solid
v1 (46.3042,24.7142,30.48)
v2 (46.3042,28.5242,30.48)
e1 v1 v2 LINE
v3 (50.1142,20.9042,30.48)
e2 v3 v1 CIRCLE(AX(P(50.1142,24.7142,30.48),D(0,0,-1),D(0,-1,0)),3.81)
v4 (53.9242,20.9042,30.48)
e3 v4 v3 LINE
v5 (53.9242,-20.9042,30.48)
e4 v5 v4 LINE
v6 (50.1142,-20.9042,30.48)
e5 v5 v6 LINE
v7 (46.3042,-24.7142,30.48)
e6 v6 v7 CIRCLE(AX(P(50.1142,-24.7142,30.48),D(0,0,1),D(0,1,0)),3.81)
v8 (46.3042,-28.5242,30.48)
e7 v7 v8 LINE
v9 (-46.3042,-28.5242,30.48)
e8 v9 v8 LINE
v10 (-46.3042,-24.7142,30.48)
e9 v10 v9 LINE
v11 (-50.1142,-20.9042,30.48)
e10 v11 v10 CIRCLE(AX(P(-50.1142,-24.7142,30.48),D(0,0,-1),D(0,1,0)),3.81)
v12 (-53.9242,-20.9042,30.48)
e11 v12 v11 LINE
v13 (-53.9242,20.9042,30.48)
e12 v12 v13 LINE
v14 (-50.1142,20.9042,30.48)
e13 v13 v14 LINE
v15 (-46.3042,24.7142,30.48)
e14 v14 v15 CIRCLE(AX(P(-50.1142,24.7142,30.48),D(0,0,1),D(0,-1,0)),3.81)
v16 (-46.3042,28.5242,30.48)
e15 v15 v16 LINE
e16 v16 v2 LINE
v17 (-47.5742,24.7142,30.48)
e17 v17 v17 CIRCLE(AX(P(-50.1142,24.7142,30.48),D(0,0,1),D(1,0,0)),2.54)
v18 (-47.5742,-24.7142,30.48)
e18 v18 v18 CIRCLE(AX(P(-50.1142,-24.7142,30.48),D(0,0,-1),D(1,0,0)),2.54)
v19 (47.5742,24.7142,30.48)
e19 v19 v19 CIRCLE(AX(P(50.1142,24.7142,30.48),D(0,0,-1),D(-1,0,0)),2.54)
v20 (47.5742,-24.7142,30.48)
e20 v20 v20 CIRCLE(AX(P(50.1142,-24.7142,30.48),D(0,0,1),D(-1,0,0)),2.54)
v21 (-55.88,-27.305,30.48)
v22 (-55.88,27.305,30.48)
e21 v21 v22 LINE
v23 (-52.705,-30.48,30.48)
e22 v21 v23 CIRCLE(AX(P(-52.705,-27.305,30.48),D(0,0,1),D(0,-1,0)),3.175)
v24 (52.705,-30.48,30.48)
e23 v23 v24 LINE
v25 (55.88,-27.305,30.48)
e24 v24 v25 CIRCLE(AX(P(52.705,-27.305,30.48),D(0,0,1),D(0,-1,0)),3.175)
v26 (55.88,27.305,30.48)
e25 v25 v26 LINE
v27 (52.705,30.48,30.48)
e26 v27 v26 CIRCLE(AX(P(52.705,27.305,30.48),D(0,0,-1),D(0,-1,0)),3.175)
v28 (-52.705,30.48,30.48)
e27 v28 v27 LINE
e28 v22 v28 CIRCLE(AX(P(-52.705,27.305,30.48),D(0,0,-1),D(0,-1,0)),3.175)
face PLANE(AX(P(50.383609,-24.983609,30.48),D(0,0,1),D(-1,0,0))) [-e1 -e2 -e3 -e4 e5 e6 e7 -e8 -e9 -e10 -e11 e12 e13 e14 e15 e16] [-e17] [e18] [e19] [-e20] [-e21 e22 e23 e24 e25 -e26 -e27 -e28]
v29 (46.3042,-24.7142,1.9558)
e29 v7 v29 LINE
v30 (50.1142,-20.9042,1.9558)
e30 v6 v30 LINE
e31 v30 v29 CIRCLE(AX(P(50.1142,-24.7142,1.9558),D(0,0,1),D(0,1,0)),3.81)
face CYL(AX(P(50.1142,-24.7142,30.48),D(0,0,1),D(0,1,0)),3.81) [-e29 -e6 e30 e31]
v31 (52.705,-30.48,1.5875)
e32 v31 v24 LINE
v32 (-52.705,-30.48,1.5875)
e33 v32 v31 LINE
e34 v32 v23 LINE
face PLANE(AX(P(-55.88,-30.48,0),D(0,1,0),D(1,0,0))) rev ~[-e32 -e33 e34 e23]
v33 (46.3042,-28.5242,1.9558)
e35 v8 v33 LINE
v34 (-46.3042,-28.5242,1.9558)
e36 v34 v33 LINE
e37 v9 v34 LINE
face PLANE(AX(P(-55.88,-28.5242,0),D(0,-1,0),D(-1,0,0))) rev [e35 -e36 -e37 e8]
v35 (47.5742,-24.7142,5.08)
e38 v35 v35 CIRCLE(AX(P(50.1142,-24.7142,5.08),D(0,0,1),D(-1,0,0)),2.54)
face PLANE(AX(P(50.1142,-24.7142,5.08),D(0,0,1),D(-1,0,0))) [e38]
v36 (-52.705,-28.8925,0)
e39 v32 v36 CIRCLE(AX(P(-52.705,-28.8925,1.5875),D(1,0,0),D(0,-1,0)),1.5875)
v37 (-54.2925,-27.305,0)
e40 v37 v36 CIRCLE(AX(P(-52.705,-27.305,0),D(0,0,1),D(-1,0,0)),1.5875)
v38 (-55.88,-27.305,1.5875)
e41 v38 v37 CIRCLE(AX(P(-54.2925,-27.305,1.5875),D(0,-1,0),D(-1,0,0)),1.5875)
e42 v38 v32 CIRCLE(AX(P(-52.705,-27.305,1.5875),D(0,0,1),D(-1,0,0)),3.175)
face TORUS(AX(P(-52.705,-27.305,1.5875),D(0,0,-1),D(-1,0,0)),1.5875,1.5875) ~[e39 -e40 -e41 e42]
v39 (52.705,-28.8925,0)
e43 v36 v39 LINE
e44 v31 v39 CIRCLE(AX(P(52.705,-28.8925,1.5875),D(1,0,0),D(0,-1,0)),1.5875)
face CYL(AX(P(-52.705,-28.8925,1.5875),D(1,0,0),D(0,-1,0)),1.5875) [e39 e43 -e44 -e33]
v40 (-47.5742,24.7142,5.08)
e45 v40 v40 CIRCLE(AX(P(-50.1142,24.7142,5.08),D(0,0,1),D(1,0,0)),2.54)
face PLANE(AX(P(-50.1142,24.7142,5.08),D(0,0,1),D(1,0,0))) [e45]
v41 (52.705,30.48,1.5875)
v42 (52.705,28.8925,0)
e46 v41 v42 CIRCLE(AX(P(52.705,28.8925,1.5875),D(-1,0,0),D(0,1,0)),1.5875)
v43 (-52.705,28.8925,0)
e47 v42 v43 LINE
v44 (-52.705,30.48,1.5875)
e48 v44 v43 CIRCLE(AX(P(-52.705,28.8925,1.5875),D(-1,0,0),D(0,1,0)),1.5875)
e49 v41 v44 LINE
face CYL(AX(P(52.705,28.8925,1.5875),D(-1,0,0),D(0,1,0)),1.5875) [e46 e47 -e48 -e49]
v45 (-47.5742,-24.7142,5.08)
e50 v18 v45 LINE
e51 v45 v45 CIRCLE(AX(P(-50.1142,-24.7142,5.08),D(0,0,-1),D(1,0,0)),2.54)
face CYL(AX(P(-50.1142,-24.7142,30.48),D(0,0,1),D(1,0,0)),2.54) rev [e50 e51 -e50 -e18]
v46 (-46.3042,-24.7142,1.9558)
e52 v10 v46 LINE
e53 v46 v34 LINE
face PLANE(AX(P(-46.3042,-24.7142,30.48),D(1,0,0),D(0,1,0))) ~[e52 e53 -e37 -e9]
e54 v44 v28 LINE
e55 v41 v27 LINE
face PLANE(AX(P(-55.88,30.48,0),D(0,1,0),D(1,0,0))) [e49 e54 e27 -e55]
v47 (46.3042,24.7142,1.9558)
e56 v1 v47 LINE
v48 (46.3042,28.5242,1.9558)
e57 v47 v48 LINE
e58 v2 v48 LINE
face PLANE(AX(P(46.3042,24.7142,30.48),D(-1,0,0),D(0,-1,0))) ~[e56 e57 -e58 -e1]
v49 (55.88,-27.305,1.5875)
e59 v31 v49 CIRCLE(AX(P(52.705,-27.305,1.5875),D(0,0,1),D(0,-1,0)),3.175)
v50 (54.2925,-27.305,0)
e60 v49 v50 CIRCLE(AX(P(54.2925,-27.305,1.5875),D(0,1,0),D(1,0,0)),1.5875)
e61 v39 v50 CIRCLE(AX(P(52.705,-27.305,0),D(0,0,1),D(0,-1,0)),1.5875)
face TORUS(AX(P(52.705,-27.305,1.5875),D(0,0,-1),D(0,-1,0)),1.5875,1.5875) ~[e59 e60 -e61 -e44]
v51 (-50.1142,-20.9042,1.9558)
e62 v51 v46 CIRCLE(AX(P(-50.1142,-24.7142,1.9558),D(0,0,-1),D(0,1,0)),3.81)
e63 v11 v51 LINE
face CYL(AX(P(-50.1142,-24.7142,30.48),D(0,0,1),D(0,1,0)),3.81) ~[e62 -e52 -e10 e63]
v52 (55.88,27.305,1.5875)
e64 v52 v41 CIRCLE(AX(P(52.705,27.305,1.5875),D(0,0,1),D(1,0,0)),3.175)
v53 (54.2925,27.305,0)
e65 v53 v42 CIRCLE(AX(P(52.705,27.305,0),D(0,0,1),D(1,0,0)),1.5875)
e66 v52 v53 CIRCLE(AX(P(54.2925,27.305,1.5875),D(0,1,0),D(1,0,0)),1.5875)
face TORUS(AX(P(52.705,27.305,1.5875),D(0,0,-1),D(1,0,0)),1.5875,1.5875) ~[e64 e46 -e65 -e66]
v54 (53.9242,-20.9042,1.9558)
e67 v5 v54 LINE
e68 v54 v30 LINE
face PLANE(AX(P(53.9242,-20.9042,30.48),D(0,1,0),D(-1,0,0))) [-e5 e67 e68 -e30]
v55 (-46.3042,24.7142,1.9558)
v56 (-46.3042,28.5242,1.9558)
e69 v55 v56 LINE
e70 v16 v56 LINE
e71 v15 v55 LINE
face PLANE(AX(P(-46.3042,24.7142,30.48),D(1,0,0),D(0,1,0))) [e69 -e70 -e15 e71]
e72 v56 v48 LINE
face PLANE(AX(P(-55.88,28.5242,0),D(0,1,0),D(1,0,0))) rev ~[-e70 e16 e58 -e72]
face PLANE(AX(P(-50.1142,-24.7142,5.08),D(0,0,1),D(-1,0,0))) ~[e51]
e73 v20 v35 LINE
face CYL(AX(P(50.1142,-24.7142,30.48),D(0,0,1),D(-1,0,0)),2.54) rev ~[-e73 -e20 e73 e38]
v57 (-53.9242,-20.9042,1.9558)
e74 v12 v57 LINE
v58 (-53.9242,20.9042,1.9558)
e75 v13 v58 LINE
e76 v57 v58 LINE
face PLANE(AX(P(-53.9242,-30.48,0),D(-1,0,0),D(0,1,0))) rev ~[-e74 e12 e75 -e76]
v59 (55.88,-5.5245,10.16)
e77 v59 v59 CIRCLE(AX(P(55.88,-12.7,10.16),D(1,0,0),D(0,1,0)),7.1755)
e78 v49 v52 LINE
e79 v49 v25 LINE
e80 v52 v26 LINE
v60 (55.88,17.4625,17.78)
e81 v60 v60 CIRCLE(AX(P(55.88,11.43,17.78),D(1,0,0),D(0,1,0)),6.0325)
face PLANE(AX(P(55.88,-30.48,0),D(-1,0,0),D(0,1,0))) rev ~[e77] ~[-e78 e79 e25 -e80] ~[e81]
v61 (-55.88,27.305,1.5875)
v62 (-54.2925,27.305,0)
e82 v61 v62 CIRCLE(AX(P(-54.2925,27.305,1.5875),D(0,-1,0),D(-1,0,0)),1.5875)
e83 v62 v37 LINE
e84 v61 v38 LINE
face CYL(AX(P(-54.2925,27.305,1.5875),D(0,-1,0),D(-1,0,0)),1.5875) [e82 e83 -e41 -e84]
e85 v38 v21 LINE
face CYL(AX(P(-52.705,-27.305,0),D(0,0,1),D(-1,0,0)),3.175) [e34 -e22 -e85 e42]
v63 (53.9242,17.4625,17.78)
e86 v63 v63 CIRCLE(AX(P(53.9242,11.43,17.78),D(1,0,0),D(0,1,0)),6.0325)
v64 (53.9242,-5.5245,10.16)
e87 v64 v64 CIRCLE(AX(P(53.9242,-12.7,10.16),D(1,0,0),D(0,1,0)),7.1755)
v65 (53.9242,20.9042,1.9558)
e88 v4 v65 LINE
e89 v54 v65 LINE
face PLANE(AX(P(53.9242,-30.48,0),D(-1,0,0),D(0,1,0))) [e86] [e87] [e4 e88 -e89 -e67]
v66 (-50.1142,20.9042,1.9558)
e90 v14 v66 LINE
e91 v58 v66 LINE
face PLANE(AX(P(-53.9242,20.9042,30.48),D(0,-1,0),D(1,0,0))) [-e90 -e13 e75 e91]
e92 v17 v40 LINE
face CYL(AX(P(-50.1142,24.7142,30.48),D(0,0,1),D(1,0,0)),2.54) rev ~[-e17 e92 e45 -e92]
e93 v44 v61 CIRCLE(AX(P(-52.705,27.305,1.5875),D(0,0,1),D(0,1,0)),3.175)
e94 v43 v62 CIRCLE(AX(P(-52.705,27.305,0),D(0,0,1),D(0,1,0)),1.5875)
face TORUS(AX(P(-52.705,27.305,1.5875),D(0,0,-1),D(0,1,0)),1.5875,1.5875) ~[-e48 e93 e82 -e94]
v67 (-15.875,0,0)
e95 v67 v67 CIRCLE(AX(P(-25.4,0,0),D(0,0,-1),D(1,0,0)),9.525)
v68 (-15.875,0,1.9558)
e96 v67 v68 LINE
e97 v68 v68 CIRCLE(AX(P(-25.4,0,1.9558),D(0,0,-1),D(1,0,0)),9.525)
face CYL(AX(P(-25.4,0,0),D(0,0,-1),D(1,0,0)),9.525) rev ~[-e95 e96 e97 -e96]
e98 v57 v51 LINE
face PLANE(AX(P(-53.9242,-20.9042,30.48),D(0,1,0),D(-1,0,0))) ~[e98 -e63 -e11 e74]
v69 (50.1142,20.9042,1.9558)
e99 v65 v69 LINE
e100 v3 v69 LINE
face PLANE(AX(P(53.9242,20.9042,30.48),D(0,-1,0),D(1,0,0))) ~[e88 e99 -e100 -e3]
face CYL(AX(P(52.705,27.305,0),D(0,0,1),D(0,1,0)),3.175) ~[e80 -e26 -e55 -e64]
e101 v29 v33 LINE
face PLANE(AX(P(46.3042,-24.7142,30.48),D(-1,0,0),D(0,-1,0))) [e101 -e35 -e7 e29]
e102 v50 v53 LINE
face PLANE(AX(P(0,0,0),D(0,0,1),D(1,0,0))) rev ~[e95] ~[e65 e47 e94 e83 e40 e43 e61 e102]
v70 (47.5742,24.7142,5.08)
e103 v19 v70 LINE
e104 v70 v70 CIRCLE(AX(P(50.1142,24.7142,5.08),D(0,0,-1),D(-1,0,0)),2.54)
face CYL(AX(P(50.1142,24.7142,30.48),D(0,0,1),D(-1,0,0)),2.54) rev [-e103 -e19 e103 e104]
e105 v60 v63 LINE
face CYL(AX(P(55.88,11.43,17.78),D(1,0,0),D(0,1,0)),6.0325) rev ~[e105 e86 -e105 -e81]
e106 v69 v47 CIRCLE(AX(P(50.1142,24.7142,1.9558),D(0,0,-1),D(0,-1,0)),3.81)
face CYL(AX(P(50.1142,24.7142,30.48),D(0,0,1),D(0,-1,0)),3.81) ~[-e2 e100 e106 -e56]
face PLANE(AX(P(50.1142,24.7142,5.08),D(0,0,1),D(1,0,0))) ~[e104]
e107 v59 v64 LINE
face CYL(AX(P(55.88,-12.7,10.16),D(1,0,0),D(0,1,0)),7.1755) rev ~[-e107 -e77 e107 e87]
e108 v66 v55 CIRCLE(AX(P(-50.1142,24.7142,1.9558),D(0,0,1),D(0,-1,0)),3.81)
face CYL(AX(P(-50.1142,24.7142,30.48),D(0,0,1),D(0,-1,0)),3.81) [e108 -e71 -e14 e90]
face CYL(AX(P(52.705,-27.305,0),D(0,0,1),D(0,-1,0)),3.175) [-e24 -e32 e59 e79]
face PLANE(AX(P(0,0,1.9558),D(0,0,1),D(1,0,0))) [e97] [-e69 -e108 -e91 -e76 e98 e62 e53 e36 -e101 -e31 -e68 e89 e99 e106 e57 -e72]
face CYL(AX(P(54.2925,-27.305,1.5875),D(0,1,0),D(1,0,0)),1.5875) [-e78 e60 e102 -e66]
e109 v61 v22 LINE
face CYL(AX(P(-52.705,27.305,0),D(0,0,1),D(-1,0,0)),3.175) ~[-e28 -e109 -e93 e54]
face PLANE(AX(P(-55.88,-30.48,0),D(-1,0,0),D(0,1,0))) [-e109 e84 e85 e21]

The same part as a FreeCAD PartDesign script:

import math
import FreeCAD as App
import Part
import Sketcher
Q = App.Units.Quantity


def edges_at(feature, points):
    """Names of the edges that pass closest to the given points."""
    edges = feature.Shape.Edges
    near = lambda p: min(range(len(edges)), key=lambda i: edges[i].distToShape(Part.Vertex(*p))[0])
    return sorted({f"Edge{near(p) + 1}" for p in points})


def faces_at(feature, points):
    """Names of the faces that lie closest to the given points."""
    faces = feature.Shape.Faces
    near = lambda p: min(range(len(faces)), key=lambda i: faces[i].distToShape(Part.Vertex(*p))[0])
    return sorted({f"Face{near(p) + 1}" for p in points})

doc = App.newDocument("Part")
body = doc.addObject("PartDesign::Body", "Body")

# Sketch on XY plane
sketch1 = body.newObject("Sketcher::SketchObject", "Sketch")
sketch1.AttachmentSupport = (doc.getObject("XY_Plane"), [""])
sketch1.MapMode = "FlatFace"
sketch1.addGeometry([
    Part.LineSegment(App.Vector(-56, 30, 0), App.Vector(-56, -30, 0)),
    Part.LineSegment(App.Vector(-56, -30, 0), App.Vector(56, -30, 0)),
    Part.LineSegment(App.Vector(56, -30, 0), App.Vector(56, 30, 0)),
    Part.LineSegment(App.Vector(56, 30, 0), App.Vector(-56, 30, 0)),
], False)
sketch1.addConstraint([
    Sketcher.Constraint("Coincident", 0, 2, 1, 1),
    Sketcher.Constraint("Coincident", 1, 2, 2, 1),
    Sketcher.Constraint("Coincident", 2, 2, 3, 1),
    Sketcher.Constraint("Coincident", 3, 2, 0, 1),
    Sketcher.Constraint("Vertical", 0),
    Sketcher.Constraint("Horizontal", 1),
    Sketcher.Constraint("Vertical", 2),
    Sketcher.Constraint("Horizontal", 3),
    Sketcher.Constraint("Symmetric", 0, 2, 2, 2, -1, 1),
    Sketcher.Constraint("DistanceX", 1, 1, 1, 2, Q("4.4 in")),
    Sketcher.Constraint("DistanceY", 0, 2, 0, 1, Q("2.4 in")),
])
pad1 = body.newObject("PartDesign::Pad", "Pad")
pad1.Profile = sketch1
pad1.Length = Q("1.2 in")
doc.recompute()

thickness = body.newObject("PartDesign::Thickness", "Thickness")
thickness.Base = (pad1, faces_at(pad1, [(0, 0, 30.48)]))
thickness.Value = Q("0.077 in")
thickness.Reversed = True
thickness.Join = "Arc"

# Sketch on XY plane
sketch2 = body.newObject("Sketcher::SketchObject", "Sketch001")
sketch2.AttachmentSupport = (doc.getObject("XY_Plane"), [""])
sketch2.MapMode = "FlatFace"
sketch2.AttachmentOffset = App.Placement(App.Vector(0, 0, 1.2 * 25.4), App.Rotation())
sketch2.addGeometry([
    Part.LineSegment(App.Vector(-53.9, 20.9, 0), App.Vector(-50.1, 20.9, 0)),  # 0
    Part.ArcOfCircle(Part.Circle(App.Vector(-50.1, 24.7, 0), App.Vector(0, 0, 1), 3.8), math.radians(-90), math.radians(0)),  # 1
    Part.LineSegment(App.Vector(-46.3, 24.7, 0), App.Vector(-46.3, 28.5, 0)),  # 2
    Part.LineSegment(App.Vector(-46.3, 28.5, 0), App.Vector(-53.9, 28.5, 0)),  # 3
    Part.LineSegment(App.Vector(-53.9, 28.5, 0), App.Vector(-53.9, 20.9, 0)),  # 4
], False)
sketch2.addConstraint([
    Sketcher.Constraint("Tangent", 0, 2, 1, 1),
    Sketcher.Constraint("Tangent", 1, 2, 2, 1),
    Sketcher.Constraint("Coincident", 2, 2, 3, 1),
    Sketcher.Constraint("Coincident", 3, 2, 4, 1),
    Sketcher.Constraint("Coincident", 4, 2, 0, 1),
    Sketcher.Constraint("Horizontal", 0),
    Sketcher.Constraint("Vertical", 2),
    Sketcher.Constraint("Horizontal", 3),
    Sketcher.Constraint("Vertical", 4),
    Sketcher.Constraint("Equal", 0, 2),
    Sketcher.Constraint("Radius", 1, Q("0.15 in")),
    Sketcher.Constraint("DistanceX", 3, 2, 3, 1, Q("0.3 in")),
    Sketcher.Constraint("DistanceX", 1, 3, -1, 1, Q("1.973 in")),
    Sketcher.Constraint("DistanceY", -1, 1, 1, 3, Q("0.973 in")),
])
pad2 = body.newObject("PartDesign::Pad", "Pad001")
pad2.Profile = sketch2
pad2.Type = "UpToLast"
pad2.Reversed = True

# Sketch on XY plane
sketch3 = body.newObject("Sketcher::SketchObject", "Sketch002")
sketch3.AttachmentSupport = (doc.getObject("XY_Plane"), [""])
sketch3.MapMode = "FlatFace"
sketch3.AttachmentOffset = App.Placement(App.Vector(0, 0, 1.2 * 25.4), App.Rotation())
sketch3.addGeometry(Part.Circle(App.Vector(-50.1, 24.7, 0), App.Vector(0, 0, 1), 2.5), False)
sketch3.addConstraint([
    Sketcher.Constraint("Diameter", 0, Q("0.2 in")),
    Sketcher.Constraint("DistanceX", 0, 3, -1, 1, Q("1.973 in")),
    Sketcher.Constraint("DistanceY", -1, 1, 0, 3, Q("0.973 in")),
])
pocket1 = body.newObject("PartDesign::Pocket", "Pocket")
pocket1.Profile = sketch3
pocket1.Length = Q("1 in")
body2 = doc.addObject("PartDesign::Body", "Body001")
doc.recompute()

body2.BaseFeature = body
doc.recompute()

mirroring = doc.addObject("Part::Mirroring", "Mirroring")
mirroring.Source = body
mirroring.Base = App.Vector(0, 0, 0)
mirroring.Normal = App.Vector(1, 0, 0)
body3 = doc.addObject("PartDesign::Body", "Body002")
body3.BaseFeature = mirroring
boolean = body2.newObject("PartDesign::Boolean", "Boolean")
boolean.Type = "Fuse"
boolean.addObjects([body3])
doc.recompute()
body4 = doc.addObject("PartDesign::Body", "Body003")
doc.recompute()

body4.BaseFeature = body2
doc.recompute()

mirroring2 = doc.addObject("Part::Mirroring", "Mirroring001")
mirroring2.Source = body2
mirroring2.Base = App.Vector(0, 0, 0)
mirroring2.Normal = App.Vector(0, -1, 0)
body5 = doc.addObject("PartDesign::Body", "Body004")
body5.BaseFeature = mirroring2
boolean2 = body4.newObject("PartDesign::Boolean", "Boolean001")
boolean2.Type = "Fuse"
boolean2.addObjects([body5])
doc.recompute()

fillet = body4.newObject("PartDesign::Fillet", "Fillet")
fillet.Base = (boolean2, edges_at(boolean2, [
    (-55.88, 30.48, 15.24),
    (-55.88, -30.48, 15.24),
    (55.88, -30.48, 15.24),
    (55.88, 30.48, 15.24),
]))
fillet.Radius = Q("0.125 in")
doc.recompute()

fillet2 = body4.newObject("PartDesign::Fillet", "Fillet001")
fillet2.Base = (fillet, edges_at(fillet, [
    (0, -30.48, 0),
    (-54.95, -29.55, 0),
    (54.95, -29.55, 0),
    (-55.88, 0, 0),
    (55.88, 0, 0),
    (-54.95, 29.55, 0),
    (54.95, 29.55, 0),
    (0, 30.48, 0),
]))
fillet2.Radius = Q("0.0625 in")

# Sketch on YZ plane
sketch4 = body4.newObject("Sketcher::SketchObject", "Sketch003")
sketch4.AttachmentSupport = (doc.getObject("YZ_Plane003"), [""])
sketch4.MapMode = "FlatFace"
sketch4.AttachmentOffset = App.Placement(App.Vector(0, 0, 2.2 * 25.4), App.Rotation())
sketch4.addGeometry(Part.Circle(App.Vector(-13, 10, 0), App.Vector(0, 0, 1), 7), False)
sketch4.addConstraint([
    Sketcher.Constraint("Diameter", 0, Q("0.565 in")),
    Sketcher.Constraint("DistanceX", 0, 3, -1, 1, Q("0.5 in")),
    Sketcher.Constraint("DistanceY", -1, 1, 0, 3, Q("0.4 in")),
])
pocket2 = body4.newObject("PartDesign::Pocket", "Pocket001")
pocket2.Profile = sketch4
pocket2.Length = Q("0.077 in")

# Sketch on YZ plane
sketch5 = body4.newObject("Sketcher::SketchObject", "Sketch004")
sketch5.AttachmentSupport = (doc.getObject("YZ_Plane003"), [""])
sketch5.MapMode = "FlatFace"
sketch5.AttachmentOffset = App.Placement(App.Vector(0, 0, 2.2 * 25.4), App.Rotation())
sketch5.addGeometry(Part.Circle(App.Vector(11, 18, 0), App.Vector(0, 0, 1), 6), False)
sketch5.addConstraint([
    Sketcher.Constraint("Diameter", 0, Q("0.475 in")),
    Sketcher.Constraint("DistanceY", -1, 1, 0, 3, Q("0.7 in")),
    Sketcher.Constraint("DistanceX", -1, 1, 0, 3, Q("0.45 in")),
])
pocket3 = body4.newObject("PartDesign::Pocket", "Pocket002")
pocket3.Profile = sketch5
pocket3.Length = Q("0.077 in")

# Sketch on XY plane
sketch6 = body4.newObject("Sketcher::SketchObject", "Sketch005")
sketch6.AttachmentSupport = (doc.getObject("XY_Plane003"), [""])
sketch6.MapMode = "FlatFace"
sketch6.addGeometry(Part.Circle(App.Vector(-25, 0, 0), App.Vector(0, 0, 1), 10), False)
sketch6.addConstraint([
    Sketcher.Constraint("PointOnObject", 0, 3, -1),
    Sketcher.Constraint("Diameter", 0, Q("0.75 in")),
    Sketcher.Constraint("DistanceX", 0, 3, -1, 1, Q("1 in")),
])
pocket4 = body4.newObject("PartDesign::Pocket", "Pocket003")
pocket4.Profile = sketch6
pocket4.Type = "ThroughAll"
pocket4.Reversed = True
mirroring.Visibility = False
mirroring2.Visibility = False

doc.recompute()
